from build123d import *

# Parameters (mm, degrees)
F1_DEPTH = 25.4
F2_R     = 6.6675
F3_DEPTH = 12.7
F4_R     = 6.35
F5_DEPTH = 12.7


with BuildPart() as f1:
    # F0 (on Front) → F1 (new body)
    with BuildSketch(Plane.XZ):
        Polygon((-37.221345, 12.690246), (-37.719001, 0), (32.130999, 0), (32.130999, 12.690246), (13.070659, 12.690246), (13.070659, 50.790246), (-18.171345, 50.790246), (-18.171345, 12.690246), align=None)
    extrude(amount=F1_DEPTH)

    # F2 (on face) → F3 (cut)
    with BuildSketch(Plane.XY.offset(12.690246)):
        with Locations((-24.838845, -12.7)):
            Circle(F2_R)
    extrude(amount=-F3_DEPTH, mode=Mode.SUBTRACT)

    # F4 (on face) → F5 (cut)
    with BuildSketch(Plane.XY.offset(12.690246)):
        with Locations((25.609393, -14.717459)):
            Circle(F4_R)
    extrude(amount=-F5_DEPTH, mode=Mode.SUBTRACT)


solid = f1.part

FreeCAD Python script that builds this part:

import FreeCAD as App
import Part
import Sketcher
from FreeCAD import Vector
Q = App.Units.Quantity

doc = App.newDocument("Part")
body = doc.addObject("PartDesign::Body", "Body")

# Sketch on XZ plane
sketch1 = body.newObject("Sketcher::SketchObject", "Sketch")
sketch1.AttachmentSupport = (doc.getObject("XZ_Plane"), [""])
sketch1.MapMode = "FlatFace"
sketch1.addGeometry(Part.LineSegment(Vector(-37.221345, 12.690246, 0), Vector(-37.719001, 0, 0)), False)
sketch1.addGeometry(Part.LineSegment(Vector(-37.719001, 0, 0), Vector(32.130999, 0, 0)), False)
sketch1.addGeometry(Part.LineSegment(Vector(32.130999, 0, 0), Vector(32.130999, 12.690246, 0)), False)
sketch1.addGeometry(Part.LineSegment(Vector(32.130999, 12.690246, 0), Vector(13.070659, 12.690246, 0)), False)
sketch1.addGeometry(Part.LineSegment(Vector(13.070659, 12.690246, 0), Vector(13.070659, 50.790246, 0)), False)
sketch1.addGeometry(Part.LineSegment(Vector(13.070659, 50.790246, 0), Vector(-18.171345, 50.790246, 0)), False)
sketch1.addGeometry(Part.LineSegment(Vector(-18.171345, 50.790246, 0), Vector(-18.171345, 12.690246, 0)), False)
sketch1.addGeometry(Part.LineSegment(Vector(-18.171345, 12.690246, 0), Vector(-37.221345, 12.690246, 0)), False)
sketch1.addConstraint(Sketcher.Constraint("Coincident", 0, 2, 1, 1))
sketch1.addConstraint(Sketcher.Constraint("Coincident", 1, 2, 2, 1))
sketch1.addConstraint(Sketcher.Constraint("Coincident", 2, 2, 3, 1))
sketch1.addConstraint(Sketcher.Constraint("Coincident", 3, 2, 4, 1))
sketch1.addConstraint(Sketcher.Constraint("Coincident", 4, 2, 5, 1))
sketch1.addConstraint(Sketcher.Constraint("Coincident", 5, 2, 6, 1))
sketch1.addConstraint(Sketcher.Constraint("Coincident", 6, 2, 7, 1))
sketch1.addConstraint(Sketcher.Constraint("Coincident", 7, 2, 0, 1))
sketch1.addConstraint(Sketcher.Constraint("Horizontal", 1))
sketch1.addConstraint(Sketcher.Constraint("Vertical", 2))
sketch1.addConstraint(Sketcher.Constraint("Horizontal", 3))
sketch1.addConstraint(Sketcher.Constraint("Vertical", 4))
sketch1.addConstraint(Sketcher.Constraint("Horizontal", 5))
sketch1.addConstraint(Sketcher.Constraint("Vertical", 6))
sketch1.addConstraint(Sketcher.Constraint("Horizontal", 7))
sketch1.addConstraint(Sketcher.Constraint("PointOnObject", 0, 2, -1))
sketch1.addConstraint(Sketcher.Constraint("Horizontal", 3, 2, 6, 2))
sketch1.addConstraint(Sketcher.Constraint("DistanceY", 4, 1, 4, 2, Q("1.5 in")))
sketch1.addConstraint(Sketcher.Constraint("Distance", 0, Q("0.5 in")))
sketch1.addConstraint(Sketcher.Constraint("DistanceX", 1, 1, 1, 2, Q("2.75 in")))
sketch1.addConstraint(Sketcher.Constraint("DistanceX", 5, 2, 5, 1, Q("1.2300002 in")))
sketch1.addConstraint(Sketcher.Constraint("DistanceX", 7, 2, 7, 1, Q("0.75 in")))
sketch1.addConstraint(Sketcher.Constraint("DistanceX", 0, 2, -1, 1, Q("1.485 in")))
sketch1.addConstraint(Sketcher.Constraint("DistanceX", 3, 2, 3, 1, Q("19.06034 mm")))
pad1 = body.newObject("PartDesign::Pad", "Pad")
pad1.Profile = sketch1
pad1.Length = Q("1 in")

# Sketch on XY plane
sketch2 = body.newObject("Sketcher::SketchObject", "Sketch001")
sketch2.AttachmentSupport = (doc.getObject("XY_Plane"), [""])
sketch2.MapMode = "FlatFace"
sketch2.AttachmentOffset = App.Placement(Vector(0, 0, 12.690246), App.Rotation())
sketch2.addGeometry(Part.Circle(Vector(-24.838845, -12.7, 0), Vector(0, 0, 1), 6.6675), False)
sketch2.addConstraint(Sketcher.Constraint("Diameter", 0, Q("0.525 in")))
sketch2.addConstraint(Sketcher.Constraint("DistanceY", 0, 3, -1, 1, Q("0.5 in")))
sketch2.addConstraint(Sketcher.Constraint("DistanceX", 0, 3, -1, 1, Q("24.838845 mm")))
pocket1 = body.newObject("PartDesign::Pocket", "Pocket")
pocket1.Profile = sketch2
pocket1.Length = Q("0.5 in")

# Sketch on XY plane
sketch3 = body.newObject("Sketcher::SketchObject", "Sketch002")
sketch3.AttachmentSupport = (doc.getObject("XY_Plane"), [""])
sketch3.MapMode = "FlatFace"
sketch3.AttachmentOffset = App.Placement(Vector(0, 0, 12.690246), App.Rotation())
sketch3.addGeometry(Part.Circle(Vector(25.609393, -14.717459, 0), Vector(0, 0, 1), 6.35), False)
sketch3.addConstraint(Sketcher.Constraint("Diameter", 0, Q("0.5 in")))
sketch3.addConstraint(Sketcher.Constraint("DistanceY", 0, 3, -1, 1, Q("14.717459 mm")))
sketch3.addConstraint(Sketcher.Constraint("DistanceX", -1, 1, 0, 3, Q("25.609393 mm")))
pocket2 = body.newObject("PartDesign::Pocket", "Pocket001")
pocket2.Profile = sketch3
pocket2.Length = Q("0.5 in")

doc.recompute()
